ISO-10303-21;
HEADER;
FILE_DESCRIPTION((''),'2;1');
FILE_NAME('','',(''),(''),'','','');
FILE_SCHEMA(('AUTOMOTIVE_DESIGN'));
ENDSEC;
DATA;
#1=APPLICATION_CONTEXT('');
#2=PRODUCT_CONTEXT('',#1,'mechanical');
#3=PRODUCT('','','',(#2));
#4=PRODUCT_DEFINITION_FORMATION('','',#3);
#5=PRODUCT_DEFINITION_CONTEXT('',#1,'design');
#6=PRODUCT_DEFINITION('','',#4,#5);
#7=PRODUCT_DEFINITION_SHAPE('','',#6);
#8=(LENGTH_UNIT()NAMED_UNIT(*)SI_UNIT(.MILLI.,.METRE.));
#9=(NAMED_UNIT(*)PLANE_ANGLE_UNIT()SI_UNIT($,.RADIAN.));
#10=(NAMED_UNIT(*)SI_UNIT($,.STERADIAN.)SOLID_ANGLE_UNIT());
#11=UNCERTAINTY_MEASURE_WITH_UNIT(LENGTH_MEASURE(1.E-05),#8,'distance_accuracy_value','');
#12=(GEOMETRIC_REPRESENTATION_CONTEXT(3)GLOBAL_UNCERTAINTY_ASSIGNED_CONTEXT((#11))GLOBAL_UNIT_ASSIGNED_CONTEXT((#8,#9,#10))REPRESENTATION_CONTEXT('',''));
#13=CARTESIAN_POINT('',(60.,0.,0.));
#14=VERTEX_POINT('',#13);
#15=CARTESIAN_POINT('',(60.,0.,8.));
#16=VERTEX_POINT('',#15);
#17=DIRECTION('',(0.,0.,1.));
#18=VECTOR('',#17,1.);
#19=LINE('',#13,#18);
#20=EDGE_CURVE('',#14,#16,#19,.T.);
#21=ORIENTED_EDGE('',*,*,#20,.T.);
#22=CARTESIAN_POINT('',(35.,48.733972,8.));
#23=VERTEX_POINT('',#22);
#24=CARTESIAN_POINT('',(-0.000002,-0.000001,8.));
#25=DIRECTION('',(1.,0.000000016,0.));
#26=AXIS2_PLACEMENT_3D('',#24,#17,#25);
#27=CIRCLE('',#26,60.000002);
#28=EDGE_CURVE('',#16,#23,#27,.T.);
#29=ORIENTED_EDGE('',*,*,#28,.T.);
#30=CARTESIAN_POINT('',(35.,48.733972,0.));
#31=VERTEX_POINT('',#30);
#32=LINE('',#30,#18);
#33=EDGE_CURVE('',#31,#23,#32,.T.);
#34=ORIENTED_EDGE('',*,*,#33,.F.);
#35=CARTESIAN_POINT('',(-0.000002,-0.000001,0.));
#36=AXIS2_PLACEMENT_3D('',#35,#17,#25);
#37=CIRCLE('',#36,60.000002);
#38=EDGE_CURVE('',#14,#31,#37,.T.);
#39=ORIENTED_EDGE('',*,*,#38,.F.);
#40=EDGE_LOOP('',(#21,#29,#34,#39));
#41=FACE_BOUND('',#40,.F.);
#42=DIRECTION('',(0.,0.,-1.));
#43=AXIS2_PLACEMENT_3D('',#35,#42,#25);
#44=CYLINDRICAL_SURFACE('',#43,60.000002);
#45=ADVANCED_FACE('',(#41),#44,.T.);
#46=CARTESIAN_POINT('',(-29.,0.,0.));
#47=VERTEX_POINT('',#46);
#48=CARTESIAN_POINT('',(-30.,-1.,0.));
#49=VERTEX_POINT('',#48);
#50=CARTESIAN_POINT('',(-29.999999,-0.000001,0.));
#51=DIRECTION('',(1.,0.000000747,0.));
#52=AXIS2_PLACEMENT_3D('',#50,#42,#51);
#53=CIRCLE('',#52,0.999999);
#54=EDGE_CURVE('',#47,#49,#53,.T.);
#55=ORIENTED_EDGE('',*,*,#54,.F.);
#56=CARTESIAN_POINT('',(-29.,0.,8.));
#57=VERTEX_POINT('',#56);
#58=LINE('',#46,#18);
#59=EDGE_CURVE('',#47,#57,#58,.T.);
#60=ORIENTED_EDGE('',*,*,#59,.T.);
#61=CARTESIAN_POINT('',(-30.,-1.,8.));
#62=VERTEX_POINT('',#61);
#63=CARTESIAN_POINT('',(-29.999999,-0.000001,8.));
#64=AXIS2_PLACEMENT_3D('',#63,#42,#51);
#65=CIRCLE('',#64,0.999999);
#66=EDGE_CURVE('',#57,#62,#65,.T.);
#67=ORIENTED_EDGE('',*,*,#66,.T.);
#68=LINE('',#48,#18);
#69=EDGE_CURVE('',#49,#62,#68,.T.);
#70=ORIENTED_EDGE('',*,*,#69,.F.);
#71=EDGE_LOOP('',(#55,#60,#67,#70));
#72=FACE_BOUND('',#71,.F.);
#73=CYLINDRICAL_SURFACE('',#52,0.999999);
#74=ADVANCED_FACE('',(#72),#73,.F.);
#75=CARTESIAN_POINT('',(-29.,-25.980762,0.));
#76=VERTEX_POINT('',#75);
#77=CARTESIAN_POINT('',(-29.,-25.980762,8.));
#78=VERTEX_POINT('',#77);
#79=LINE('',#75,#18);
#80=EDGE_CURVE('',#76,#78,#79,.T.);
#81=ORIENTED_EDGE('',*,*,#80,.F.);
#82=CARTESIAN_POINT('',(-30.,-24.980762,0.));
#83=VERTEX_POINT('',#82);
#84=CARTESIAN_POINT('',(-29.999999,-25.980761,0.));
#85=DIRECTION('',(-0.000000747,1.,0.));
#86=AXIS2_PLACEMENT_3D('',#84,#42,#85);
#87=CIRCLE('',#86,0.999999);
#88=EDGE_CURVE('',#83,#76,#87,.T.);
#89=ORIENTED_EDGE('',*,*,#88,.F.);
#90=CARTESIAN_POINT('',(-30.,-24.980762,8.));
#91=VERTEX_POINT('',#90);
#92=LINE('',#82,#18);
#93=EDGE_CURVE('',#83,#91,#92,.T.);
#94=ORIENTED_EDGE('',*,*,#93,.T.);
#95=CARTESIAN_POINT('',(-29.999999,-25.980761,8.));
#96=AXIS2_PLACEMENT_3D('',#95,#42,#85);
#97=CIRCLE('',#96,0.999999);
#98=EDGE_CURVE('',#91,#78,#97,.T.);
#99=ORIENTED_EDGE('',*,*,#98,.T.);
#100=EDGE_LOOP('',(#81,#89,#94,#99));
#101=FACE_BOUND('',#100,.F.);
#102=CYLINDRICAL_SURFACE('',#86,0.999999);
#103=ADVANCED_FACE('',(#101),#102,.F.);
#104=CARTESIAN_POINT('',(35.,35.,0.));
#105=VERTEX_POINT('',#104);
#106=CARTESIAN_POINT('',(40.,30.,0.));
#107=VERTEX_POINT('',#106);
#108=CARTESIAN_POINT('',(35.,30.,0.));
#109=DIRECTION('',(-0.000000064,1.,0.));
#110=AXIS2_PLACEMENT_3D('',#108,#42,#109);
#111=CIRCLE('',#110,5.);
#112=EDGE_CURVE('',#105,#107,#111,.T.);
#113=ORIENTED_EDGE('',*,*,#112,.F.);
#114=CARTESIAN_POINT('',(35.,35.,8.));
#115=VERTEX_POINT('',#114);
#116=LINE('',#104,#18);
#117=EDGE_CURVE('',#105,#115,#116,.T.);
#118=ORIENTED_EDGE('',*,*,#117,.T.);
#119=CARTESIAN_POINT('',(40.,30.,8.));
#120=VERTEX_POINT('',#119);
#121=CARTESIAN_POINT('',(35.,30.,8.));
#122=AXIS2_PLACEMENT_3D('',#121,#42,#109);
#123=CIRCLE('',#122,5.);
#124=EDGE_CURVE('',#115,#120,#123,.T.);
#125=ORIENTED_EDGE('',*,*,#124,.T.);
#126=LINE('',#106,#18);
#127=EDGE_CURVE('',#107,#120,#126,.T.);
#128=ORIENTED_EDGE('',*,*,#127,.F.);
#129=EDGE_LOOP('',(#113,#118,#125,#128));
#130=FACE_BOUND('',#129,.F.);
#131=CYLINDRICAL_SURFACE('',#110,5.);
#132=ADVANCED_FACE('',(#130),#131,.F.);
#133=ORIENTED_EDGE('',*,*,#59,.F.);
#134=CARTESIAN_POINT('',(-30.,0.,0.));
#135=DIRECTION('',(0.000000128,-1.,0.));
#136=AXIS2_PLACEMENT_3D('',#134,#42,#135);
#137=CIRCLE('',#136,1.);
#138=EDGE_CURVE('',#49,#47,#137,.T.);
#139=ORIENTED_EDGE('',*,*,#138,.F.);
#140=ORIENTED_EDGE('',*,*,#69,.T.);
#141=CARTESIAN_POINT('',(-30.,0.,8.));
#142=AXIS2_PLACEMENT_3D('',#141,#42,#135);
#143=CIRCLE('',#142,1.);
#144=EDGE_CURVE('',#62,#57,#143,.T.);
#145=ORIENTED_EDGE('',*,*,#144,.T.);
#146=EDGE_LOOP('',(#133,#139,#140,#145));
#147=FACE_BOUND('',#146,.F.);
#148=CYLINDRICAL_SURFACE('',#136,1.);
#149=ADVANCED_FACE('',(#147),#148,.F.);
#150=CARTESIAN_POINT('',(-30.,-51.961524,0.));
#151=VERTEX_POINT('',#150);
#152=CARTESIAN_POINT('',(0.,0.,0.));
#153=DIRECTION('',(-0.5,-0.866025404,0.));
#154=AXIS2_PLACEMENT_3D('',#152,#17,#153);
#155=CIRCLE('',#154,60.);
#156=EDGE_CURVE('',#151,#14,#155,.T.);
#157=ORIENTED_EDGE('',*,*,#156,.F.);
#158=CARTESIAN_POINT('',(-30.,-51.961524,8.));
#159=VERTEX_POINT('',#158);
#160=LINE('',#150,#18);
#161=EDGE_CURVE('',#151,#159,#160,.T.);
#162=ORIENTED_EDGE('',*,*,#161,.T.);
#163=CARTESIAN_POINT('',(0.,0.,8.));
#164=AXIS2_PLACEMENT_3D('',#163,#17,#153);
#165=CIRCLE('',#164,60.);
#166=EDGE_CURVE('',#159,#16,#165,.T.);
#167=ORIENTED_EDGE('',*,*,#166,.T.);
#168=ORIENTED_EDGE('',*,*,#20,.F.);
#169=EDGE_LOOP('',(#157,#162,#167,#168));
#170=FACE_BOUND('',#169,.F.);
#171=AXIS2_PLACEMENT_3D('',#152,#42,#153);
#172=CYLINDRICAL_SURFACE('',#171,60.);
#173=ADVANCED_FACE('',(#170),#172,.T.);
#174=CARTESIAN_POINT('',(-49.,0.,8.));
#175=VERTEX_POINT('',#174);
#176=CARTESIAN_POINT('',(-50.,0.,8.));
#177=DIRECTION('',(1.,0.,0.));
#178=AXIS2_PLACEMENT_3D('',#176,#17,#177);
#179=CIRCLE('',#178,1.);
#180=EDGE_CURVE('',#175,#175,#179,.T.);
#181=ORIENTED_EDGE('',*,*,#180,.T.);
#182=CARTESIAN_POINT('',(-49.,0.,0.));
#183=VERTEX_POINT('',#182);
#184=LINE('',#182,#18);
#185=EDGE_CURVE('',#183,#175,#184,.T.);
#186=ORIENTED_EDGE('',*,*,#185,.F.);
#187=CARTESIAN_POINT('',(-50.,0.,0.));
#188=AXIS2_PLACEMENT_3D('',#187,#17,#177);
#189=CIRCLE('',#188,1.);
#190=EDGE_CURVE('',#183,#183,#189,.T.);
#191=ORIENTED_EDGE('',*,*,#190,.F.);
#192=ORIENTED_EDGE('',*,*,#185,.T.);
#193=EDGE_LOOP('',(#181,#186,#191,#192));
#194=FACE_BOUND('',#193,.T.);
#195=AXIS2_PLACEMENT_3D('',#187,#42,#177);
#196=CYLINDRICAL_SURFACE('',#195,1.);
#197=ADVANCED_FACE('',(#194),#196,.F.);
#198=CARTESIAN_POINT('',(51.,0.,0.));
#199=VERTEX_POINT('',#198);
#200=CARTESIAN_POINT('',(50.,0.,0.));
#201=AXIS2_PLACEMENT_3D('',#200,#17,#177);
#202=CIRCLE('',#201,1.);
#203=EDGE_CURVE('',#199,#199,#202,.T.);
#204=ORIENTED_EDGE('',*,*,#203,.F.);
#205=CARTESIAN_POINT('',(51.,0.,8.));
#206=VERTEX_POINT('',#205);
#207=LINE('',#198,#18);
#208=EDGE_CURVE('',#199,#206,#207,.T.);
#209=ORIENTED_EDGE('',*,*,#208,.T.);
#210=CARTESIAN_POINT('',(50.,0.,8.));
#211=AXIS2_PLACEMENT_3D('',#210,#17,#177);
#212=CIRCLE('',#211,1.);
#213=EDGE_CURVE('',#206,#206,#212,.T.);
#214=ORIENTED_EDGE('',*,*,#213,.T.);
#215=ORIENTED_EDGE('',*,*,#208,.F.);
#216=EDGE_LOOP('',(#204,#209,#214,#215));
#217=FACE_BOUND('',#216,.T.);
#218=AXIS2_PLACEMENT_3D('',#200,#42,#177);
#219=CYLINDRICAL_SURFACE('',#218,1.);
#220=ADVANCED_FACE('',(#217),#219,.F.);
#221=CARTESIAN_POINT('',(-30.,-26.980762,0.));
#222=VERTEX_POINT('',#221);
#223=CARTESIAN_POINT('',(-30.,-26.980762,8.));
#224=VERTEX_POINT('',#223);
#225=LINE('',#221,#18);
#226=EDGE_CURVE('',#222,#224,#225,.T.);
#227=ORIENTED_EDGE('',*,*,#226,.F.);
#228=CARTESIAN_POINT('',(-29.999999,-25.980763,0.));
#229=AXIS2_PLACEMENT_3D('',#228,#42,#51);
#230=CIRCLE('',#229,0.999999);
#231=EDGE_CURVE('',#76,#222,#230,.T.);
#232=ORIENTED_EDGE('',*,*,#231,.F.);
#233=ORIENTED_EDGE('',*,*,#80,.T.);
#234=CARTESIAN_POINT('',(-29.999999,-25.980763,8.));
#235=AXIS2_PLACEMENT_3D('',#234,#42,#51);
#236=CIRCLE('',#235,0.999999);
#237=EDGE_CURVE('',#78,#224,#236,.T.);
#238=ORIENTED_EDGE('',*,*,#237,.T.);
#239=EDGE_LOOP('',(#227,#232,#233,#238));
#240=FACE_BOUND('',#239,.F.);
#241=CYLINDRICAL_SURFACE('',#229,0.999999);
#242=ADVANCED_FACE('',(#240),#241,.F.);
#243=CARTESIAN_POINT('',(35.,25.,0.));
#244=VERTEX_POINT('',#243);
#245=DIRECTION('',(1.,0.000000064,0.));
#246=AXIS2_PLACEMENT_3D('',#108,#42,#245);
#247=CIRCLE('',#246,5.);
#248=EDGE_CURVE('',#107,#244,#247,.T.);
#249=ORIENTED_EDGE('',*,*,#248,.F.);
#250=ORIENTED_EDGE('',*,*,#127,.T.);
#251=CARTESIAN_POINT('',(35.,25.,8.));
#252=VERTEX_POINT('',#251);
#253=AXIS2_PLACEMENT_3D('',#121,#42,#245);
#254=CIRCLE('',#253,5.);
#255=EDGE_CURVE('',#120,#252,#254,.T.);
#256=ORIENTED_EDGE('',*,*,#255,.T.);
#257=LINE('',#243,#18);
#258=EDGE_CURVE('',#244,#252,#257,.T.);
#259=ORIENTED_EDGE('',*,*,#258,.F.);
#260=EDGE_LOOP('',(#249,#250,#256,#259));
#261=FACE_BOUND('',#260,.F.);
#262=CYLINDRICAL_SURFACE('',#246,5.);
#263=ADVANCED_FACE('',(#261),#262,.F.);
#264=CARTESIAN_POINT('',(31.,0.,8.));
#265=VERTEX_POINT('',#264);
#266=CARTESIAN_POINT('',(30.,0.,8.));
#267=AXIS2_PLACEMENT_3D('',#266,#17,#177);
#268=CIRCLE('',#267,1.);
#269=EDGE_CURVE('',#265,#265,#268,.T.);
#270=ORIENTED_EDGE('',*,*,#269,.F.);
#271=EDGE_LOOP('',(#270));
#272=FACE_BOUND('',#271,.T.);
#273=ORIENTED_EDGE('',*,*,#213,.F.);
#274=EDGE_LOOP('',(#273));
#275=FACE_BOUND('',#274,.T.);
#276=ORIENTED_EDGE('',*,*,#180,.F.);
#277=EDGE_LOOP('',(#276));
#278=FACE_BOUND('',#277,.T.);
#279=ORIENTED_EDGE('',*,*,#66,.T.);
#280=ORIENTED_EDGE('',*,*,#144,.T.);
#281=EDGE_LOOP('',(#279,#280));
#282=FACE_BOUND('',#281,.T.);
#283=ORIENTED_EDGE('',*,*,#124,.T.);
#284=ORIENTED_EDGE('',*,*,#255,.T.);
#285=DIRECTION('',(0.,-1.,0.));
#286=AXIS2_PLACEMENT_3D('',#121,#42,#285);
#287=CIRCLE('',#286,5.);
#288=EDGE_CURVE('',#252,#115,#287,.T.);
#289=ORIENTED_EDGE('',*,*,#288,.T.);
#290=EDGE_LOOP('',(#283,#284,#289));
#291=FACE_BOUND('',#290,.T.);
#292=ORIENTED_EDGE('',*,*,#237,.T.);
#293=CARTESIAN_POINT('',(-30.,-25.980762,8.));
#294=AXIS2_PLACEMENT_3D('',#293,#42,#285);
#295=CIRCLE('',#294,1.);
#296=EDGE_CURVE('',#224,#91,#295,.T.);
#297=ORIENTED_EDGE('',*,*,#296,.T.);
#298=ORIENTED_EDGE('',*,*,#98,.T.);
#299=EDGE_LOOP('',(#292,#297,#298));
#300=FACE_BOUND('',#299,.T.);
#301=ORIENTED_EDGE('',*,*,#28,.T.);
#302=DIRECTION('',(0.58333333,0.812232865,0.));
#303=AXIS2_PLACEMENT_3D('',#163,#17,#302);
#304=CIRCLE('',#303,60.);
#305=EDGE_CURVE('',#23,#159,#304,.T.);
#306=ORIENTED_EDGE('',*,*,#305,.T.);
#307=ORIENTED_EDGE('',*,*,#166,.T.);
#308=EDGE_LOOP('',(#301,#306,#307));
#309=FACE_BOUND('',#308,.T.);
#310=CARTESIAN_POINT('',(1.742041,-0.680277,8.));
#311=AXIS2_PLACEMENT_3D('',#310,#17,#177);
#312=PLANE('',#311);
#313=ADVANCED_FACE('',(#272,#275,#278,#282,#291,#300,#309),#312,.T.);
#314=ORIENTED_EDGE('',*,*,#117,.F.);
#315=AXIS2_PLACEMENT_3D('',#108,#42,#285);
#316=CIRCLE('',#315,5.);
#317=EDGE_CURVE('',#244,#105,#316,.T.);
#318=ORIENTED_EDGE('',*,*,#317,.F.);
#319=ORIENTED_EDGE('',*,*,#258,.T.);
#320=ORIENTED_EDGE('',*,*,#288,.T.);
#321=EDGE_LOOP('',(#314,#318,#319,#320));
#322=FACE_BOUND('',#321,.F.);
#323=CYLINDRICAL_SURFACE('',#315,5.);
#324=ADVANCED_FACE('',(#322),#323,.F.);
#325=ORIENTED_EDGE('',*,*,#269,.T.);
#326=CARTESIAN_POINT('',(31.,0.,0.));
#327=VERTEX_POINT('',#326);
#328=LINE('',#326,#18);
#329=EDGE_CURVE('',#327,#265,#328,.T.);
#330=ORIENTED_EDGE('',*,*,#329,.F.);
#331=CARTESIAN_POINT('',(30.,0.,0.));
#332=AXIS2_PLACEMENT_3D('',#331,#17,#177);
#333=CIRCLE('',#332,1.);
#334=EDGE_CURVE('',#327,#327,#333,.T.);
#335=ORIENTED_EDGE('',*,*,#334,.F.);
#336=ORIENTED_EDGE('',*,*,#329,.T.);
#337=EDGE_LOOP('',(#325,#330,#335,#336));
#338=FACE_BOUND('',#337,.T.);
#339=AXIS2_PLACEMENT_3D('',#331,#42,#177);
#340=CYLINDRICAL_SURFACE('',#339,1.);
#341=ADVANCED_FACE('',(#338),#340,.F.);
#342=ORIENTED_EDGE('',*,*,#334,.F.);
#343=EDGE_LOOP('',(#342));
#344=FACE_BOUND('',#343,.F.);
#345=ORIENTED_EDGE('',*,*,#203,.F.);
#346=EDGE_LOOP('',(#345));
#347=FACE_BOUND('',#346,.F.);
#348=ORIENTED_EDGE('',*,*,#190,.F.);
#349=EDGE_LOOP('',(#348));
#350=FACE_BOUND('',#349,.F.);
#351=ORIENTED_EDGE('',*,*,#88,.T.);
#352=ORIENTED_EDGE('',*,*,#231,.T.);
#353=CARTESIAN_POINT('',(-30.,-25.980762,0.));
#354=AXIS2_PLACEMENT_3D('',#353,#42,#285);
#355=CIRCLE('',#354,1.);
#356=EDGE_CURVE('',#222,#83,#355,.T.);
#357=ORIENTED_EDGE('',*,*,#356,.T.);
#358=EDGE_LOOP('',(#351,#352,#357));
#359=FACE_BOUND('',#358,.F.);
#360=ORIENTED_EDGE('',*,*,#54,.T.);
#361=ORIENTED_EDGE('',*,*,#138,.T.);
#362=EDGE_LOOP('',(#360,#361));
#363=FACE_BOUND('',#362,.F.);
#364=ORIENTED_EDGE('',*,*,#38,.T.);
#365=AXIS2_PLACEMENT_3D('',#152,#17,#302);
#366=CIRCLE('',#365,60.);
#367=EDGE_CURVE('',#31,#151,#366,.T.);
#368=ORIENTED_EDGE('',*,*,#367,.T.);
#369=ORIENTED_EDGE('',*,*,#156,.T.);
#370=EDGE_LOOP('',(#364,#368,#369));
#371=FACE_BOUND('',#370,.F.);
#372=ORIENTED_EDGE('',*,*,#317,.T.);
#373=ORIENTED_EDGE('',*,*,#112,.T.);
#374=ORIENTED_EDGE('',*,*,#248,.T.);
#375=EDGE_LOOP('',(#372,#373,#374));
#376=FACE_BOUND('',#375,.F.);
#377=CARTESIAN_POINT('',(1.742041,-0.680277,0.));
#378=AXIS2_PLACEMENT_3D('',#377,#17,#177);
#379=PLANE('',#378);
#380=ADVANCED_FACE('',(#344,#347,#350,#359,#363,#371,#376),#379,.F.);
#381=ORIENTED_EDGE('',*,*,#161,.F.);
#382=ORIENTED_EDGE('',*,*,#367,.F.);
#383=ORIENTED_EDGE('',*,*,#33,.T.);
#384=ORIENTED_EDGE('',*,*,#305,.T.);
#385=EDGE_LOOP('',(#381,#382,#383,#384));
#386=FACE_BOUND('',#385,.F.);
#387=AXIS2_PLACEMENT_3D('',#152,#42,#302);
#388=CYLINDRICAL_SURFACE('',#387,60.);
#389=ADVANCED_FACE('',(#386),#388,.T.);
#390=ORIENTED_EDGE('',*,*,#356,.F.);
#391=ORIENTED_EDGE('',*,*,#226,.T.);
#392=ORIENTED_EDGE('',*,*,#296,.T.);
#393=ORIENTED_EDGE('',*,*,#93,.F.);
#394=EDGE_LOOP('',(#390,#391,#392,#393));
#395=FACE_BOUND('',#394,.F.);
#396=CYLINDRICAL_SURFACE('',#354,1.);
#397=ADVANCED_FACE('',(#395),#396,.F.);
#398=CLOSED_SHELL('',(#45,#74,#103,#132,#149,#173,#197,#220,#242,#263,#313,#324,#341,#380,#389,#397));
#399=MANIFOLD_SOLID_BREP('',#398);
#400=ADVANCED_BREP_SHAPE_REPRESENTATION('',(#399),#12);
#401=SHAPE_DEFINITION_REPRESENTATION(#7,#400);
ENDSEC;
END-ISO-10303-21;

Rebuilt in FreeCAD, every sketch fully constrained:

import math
import FreeCAD as App
import Part
import Sketcher
from FreeCAD import Vector
Q = App.Units.Quantity

doc = App.newDocument("Part")
body = doc.addObject("PartDesign::Body", "Body")

# Sketch on XY plane
sketch1 = body.newObject("Sketcher::SketchObject", "Sketch")
sketch1.AttachmentSupport = (doc.getObject("XY_Plane"), [""])
sketch1.MapMode = "FlatFace"
sketch1.addGeometry(Part.ArcOfCircle(Part.Circle(Vector(0, 0, 0), Vector(0, 0, 1), 60), math.radians(-120), math.radians(0)), False)
sketch1.addGeometry(Part.ArcOfCircle(Part.Circle(Vector(0, 0, 0), Vector(0, 0, 1), 60), math.radians(0), math.radians(54)), False)
sketch1.addGeometry(Part.ArcOfCircle(Part.Circle(Vector(0, 0, 0), Vector(0, 0, 1), 60), math.radians(54), math.radians(240)), False)
sketch1.addGeometry(Part.ArcOfCircle(Part.Circle(Vector(-30, -26, 0), Vector(0, 0, 1), 1), math.radians(0), math.radians(90)), False)
sketch1.addGeometry(Part.ArcOfCircle(Part.Circle(Vector(-30, -26, 0), Vector(0, 0, 1), 1), math.radians(-90), math.radians(0)), False)
sketch1.addGeometry(Part.ArcOfCircle(Part.Circle(Vector(-30, -26, 0), Vector(0, 0, 1), 1), math.radians(90), math.radians(270)), False)
sketch1.addGeometry(Part.Circle(Vector(-50, 0, 0), Vector(0, 0, 1), 1), False)
sketch1.addGeometry(Part.ArcOfCircle(Part.Circle(Vector(-30, 0, 0), Vector(0, 0, 1), 1), math.radians(0), math.radians(270)), False)
sketch1.addGeometry(Part.ArcOfCircle(Part.Circle(Vector(-30, 0, 0), Vector(0, 0, 1), 1), math.radians(-90), math.radians(0)), False)
sketch1.addGeometry(Part.Circle(Vector(30, 0, 0), Vector(0, 0, 1), 1), False)
sketch1.addGeometry(Part.Circle(Vector(50, 0, 0), Vector(0, 0, 1), 1), False)
sketch1.addGeometry(Part.ArcOfCircle(Part.Circle(Vector(35, 30, 0), Vector(0, 0, 1), 5), math.radians(-90), math.radians(0)), False)
sketch1.addGeometry(Part.ArcOfCircle(Part.Circle(Vector(35, 30, 0), Vector(0, 0, 1), 5), math.radians(90), math.radians(270)), False)
sketch1.addGeometry(Part.ArcOfCircle(Part.Circle(Vector(35, 30, 0), Vector(0, 0, 1), 5), math.radians(0), math.radians(90)), False)
sketch1.addConstraint(Sketcher.Constraint("Tangent", 0, 2, 1, 1))
sketch1.addConstraint(Sketcher.Constraint("Tangent", 1, 2, 2, 1))
sketch1.addConstraint(Sketcher.Constraint("Tangent", 2, 2, 0, 1))
sketch1.addConstraint(Sketcher.Constraint("Tangent", 3, 1, 4, 2))
sketch1.addConstraint(Sketcher.Constraint("Tangent", 4, 1, 5, 2))
sketch1.addConstraint(Sketcher.Constraint("Tangent", 5, 1, 3, 2))
sketch1.addConstraint(Sketcher.Constraint("Tangent", 7, 1, 8, 2))
sketch1.addConstraint(Sketcher.Constraint("Coincident", 8, 1, 7, 2))
sketch1.addConstraint(Sketcher.Constraint("Tangent", 11, 1, 12, 2))
sketch1.addConstraint(Sketcher.Constraint("Tangent", 12, 1, 13, 2))
sketch1.addConstraint(Sketcher.Constraint("Tangent", 13, 1, 11, 2))
sketch1.addConstraint(Sketcher.Constraint("Coincident", 0, 3, -1, 1))
sketch1.addConstraint(Sketcher.Constraint("Equal", 5, 6))
sketch1.addConstraint(Sketcher.Constraint("Equal", 6, 7))
sketch1.addConstraint(Sketcher.Constraint("Equal", 8, 9))
sketch1.addConstraint(Sketcher.Constraint("Equal", 9, 10))
sketch1.addConstraint(Sketcher.Constraint("Symmetric", 7, 3, 9, 3, -1, 1))
sketch1.addConstraint(Sketcher.Constraint("Symmetric", 6, 3, 10, 3, -1, 1))
sketch1.addConstraint(Sketcher.Constraint("PointOnObject", 6, 3, -1))
sketch1.addConstraint(Sketcher.Constraint("PointOnObject", 7, 3, -1))
sketch1.addConstraint(Sketcher.Constraint("PointOnObject", 0, 2, -1))
sketch1.addConstraint(Sketcher.Constraint("PointOnObject", 7, 1, -1))
sketch1.addConstraint(Sketcher.Constraint("Horizontal", 5, 3, 3, 1))
sketch1.addConstraint(Sketcher.Constraint("Horizontal", 12, 3, 13, 1))
sketch1.addConstraint(Sketcher.Constraint("Vertical", 5, 3, 7, 3))
sketch1.addConstraint(Sketcher.Constraint("Vertical", 13, 3, 1, 2))
sketch1.addConstraint(Sketcher.Constraint("Vertical", 8, 3, 2, 2))
sketch1.addConstraint(Sketcher.Constraint("Vertical", 2, 2, 4, 1))
sketch1.addConstraint(Sketcher.Constraint("Vertical", 4, 1, 5, 1))
sketch1.addConstraint(Sketcher.Constraint("Vertical", 5, 1, 8, 1))
sketch1.addConstraint(Sketcher.Constraint("Vertical", 1, 2, 11, 1))
sketch1.addConstraint(Sketcher.Constraint("Vertical", 11, 1, 12, 1))
sketch1.addConstraint(Sketcher.Constraint("Diameter", 6, Q("2 mm")))
sketch1.addConstraint(Sketcher.Constraint("Radius", 0, Q("60 mm")))
sketch1.addConstraint(Sketcher.Constraint("Radius", 11, Q("5 mm")))
sketch1.addConstraint(Sketcher.Constraint("DistanceX", 3, 3, -1, 1, Q("29.999999 mm")))
sketch1.addConstraint(Sketcher.Constraint("DistanceX", 6, 3, -1, 1, Q("50 mm")))
sketch1.addConstraint(Sketcher.Constraint("DistanceX", -1, 1, 11, 3, Q("35 mm")))
sketch1.addConstraint(Sketcher.Constraint("DistanceY", -1, 1, 11, 3, Q("30 mm")))
sketch1.addConstraint(Sketcher.Constraint("DistanceY", 3, 3, -1, 1, Q("25.980761 mm")))
pad1 = body.newObject("PartDesign::Pad", "Pad")
pad1.Profile = sketch1
pad1.Length = 8

doc.recompute()
